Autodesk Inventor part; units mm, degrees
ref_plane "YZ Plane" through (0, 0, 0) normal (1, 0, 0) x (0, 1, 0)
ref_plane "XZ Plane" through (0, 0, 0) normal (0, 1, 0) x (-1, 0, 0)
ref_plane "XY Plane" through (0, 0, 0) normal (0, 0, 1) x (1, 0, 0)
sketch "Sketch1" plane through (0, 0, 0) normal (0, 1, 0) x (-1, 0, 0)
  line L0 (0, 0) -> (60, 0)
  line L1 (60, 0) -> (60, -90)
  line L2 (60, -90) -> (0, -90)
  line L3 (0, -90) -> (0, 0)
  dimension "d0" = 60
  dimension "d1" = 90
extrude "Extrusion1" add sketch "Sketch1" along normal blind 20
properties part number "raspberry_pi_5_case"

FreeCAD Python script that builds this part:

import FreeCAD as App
import Part
import Sketcher
from FreeCAD import Vector
Q = App.Units.Quantity

doc = App.newDocument("Part")
params = doc.addObject("Spreadsheet::Sheet", "Params")
for row, (alias, value) in enumerate([
    ("sketch1_width", "60 mm"),
    ("sketch1_height", "90 mm"),
    ("pad1_length", "20 mm"),
], start=1):
    params.set(f"A{row}", alias)
    params.set(f"B{row}", "=" + value)
    params.setAlias(f"B{row}", alias)

body = doc.addObject("PartDesign::Body", "Body")

# Sketch on XZ plane
sketch1 = body.newObject("Sketcher::SketchObject", "Sketch")
sketch1.AttachmentSupport = (doc.getObject("XZ_Plane"), [""])
sketch1.MapMode = "FlatFace"
sketch1.addGeometry([
    Part.LineSegment(Vector(-60, 0, 0), Vector(0, 0, 0)),
    Part.LineSegment(Vector(0, 0, 0), Vector(0, -90, 0)),
    Part.LineSegment(Vector(0, -90, 0), Vector(-60, -90, 0)),
    Part.LineSegment(Vector(-60, -90, 0), Vector(-60, 0, 0)),
], False)
sketch1.addConstraint([
    Sketcher.Constraint("Coincident", 0, 2, 1, 1),
    Sketcher.Constraint("Coincident", 1, 2, 2, 1),
    Sketcher.Constraint("Coincident", 2, 2, 3, 1),
    Sketcher.Constraint("Coincident", 3, 2, 0, 1),
    Sketcher.Constraint("Horizontal", 0),
    Sketcher.Constraint("Vertical", 1),
    Sketcher.Constraint("Horizontal", 2),
    Sketcher.Constraint("Vertical", 3),
    Sketcher.Constraint("Coincident", 0, 2, -1, 1),
    Sketcher.Constraint("DistanceX", 0, 1, 0, 2, Q("60 mm")),
    Sketcher.Constraint("DistanceY", 1, 2, 1, 1, Q("90 mm")),
])
sketch1.setExpression("Constraints[9]", "Params.sketch1_width")
sketch1.setExpression("Constraints[10]", "Params.sketch1_height")
pad1 = body.newObject("PartDesign::Pad", "Pad")
pad1.Profile = sketch1
pad1.setExpression("Length", "Params.pad1_length")
pad1.Reversed = True

doc.recompute()
